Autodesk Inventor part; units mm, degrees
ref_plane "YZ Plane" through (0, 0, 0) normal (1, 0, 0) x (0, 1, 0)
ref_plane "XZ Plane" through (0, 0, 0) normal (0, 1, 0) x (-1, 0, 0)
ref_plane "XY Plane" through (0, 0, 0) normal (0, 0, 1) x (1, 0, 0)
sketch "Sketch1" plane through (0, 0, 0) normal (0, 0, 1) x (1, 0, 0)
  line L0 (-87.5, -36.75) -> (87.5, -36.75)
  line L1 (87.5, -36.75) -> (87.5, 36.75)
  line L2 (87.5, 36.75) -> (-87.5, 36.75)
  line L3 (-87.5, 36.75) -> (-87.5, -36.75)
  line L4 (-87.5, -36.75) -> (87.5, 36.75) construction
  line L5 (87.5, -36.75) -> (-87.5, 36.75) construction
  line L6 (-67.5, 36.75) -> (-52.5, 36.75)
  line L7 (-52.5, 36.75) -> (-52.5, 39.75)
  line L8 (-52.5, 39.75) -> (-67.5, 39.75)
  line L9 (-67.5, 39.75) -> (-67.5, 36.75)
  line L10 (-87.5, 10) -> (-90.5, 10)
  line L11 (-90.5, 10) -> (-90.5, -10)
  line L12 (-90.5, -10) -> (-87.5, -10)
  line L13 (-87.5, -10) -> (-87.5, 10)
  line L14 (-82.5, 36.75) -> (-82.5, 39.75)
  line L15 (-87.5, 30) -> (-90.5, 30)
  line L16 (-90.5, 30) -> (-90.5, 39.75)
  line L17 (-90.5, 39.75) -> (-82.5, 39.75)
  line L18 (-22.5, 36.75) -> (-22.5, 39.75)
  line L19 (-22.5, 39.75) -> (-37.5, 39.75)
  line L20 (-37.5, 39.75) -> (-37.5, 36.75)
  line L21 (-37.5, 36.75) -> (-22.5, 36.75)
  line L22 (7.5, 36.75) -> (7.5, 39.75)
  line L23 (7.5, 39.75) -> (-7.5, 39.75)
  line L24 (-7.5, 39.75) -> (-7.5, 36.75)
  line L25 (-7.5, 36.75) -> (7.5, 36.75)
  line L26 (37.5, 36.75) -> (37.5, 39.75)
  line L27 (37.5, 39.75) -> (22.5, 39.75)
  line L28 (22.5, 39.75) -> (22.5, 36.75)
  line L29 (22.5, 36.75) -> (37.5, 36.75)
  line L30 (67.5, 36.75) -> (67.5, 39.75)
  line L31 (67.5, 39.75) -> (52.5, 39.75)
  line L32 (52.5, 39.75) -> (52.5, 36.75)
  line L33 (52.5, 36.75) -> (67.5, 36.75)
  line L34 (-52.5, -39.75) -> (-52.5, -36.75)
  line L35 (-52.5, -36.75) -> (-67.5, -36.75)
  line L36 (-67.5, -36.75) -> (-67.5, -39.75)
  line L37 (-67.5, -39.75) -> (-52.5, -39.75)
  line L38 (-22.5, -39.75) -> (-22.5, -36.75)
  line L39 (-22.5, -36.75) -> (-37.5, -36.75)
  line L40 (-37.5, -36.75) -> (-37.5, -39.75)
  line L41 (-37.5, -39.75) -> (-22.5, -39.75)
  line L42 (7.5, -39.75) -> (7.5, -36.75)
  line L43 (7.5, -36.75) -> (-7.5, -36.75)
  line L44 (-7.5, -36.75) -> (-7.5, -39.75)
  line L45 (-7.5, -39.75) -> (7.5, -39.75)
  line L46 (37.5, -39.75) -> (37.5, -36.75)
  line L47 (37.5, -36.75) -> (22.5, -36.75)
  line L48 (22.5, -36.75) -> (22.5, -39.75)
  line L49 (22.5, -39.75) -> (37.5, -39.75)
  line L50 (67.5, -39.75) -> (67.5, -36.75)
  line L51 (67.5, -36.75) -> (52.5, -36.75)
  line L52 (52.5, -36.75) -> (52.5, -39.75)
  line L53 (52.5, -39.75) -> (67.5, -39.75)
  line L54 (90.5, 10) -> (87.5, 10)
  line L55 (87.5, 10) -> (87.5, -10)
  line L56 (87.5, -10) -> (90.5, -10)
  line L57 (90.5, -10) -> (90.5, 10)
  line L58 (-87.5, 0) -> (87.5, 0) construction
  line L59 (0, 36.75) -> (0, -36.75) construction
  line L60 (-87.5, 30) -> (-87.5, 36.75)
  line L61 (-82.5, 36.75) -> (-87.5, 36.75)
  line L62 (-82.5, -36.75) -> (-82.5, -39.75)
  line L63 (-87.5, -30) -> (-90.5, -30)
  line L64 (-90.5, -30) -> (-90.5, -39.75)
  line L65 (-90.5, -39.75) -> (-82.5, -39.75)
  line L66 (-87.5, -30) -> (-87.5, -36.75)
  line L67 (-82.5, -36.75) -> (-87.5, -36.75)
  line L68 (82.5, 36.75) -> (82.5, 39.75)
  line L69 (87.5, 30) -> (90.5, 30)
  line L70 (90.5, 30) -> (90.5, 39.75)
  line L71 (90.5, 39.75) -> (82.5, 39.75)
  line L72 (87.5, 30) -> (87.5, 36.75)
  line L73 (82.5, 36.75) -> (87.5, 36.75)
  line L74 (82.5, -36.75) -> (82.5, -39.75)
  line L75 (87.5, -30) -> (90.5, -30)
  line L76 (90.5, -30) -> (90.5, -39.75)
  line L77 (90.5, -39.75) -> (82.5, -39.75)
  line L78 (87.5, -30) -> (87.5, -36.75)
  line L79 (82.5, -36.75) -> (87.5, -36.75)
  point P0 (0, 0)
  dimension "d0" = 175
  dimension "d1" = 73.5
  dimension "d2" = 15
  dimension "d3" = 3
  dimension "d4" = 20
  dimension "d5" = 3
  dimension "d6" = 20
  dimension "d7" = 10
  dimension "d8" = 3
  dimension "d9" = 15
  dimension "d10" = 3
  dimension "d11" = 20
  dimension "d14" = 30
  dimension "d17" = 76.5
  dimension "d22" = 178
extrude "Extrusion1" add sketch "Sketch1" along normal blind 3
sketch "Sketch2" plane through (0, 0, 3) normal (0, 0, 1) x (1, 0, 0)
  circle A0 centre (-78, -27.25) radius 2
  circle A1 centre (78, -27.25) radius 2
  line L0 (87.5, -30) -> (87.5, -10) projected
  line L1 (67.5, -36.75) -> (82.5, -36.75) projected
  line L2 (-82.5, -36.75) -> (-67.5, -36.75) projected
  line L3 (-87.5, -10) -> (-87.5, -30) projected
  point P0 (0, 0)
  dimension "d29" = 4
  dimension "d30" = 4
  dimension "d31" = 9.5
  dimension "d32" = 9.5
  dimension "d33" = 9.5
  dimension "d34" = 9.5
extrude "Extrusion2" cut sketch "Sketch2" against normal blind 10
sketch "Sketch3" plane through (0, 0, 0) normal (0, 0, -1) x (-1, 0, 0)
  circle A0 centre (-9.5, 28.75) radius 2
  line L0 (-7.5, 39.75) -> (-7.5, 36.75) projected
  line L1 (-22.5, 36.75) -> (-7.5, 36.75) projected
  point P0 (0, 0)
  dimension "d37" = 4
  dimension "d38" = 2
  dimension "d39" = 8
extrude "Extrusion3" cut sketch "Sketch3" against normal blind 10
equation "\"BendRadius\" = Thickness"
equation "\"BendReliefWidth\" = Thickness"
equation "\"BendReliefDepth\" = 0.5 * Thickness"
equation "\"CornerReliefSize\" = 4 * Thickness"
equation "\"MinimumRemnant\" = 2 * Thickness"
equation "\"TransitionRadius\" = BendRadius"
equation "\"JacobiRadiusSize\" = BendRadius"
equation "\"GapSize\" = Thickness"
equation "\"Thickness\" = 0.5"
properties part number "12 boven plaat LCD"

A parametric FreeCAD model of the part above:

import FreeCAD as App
import Part
import Sketcher

V = App.Vector
Q = App.Units.Quantity

doc = App.newDocument("Part")
body = doc.addObject("PartDesign::Body", "Body")

# Sketch on XY plane
sketch1 = body.newObject("Sketcher::SketchObject", "Sketch")
sketch1.AttachmentSupport = (doc.getObject("XY_Plane"), [""])
sketch1.MapMode = "FlatFace"
sketch1.addGeometry(Part.LineSegment(V(-87.5, -10, 0), V(-87.5, -30, 0)), False)
sketch1.addGeometry(Part.LineSegment(V(-87.5, -30, 0), V(-90.5, -30, 0)), False)
sketch1.addGeometry(Part.LineSegment(V(-90.5, -30, 0), V(-90.5, -39.8, 0)), False)
sketch1.addGeometry(Part.LineSegment(V(-90.5, -39.8, 0), V(-82.5, -39.8, 0)), False)
sketch1.addGeometry(Part.LineSegment(V(-82.5, -39.8, 0), V(-82.5, -36.8, 0)), False)
sketch1.addGeometry(Part.LineSegment(V(-82.5, -36.8, 0), V(-67.5, -36.8, 0)), False)
sketch1.addGeometry(Part.LineSegment(V(-67.5, -36.8, 0), V(-67.5, -39.8, 0)), False)
sketch1.addGeometry(Part.LineSegment(V(-67.5, -39.8, 0), V(-52.5, -39.8, 0)), False)
sketch1.addGeometry(Part.LineSegment(V(-52.5, -39.8, 0), V(-52.5, -36.8, 0)), False)
sketch1.addGeometry(Part.LineSegment(V(-52.5, -36.8, 0), V(-37.5, -36.8, 0)), False)
sketch1.addGeometry(Part.LineSegment(V(-37.5, -36.8, 0), V(-37.5, -39.8, 0)), False)
sketch1.addGeometry(Part.LineSegment(V(-37.5, -39.8, 0), V(-22.5, -39.8, 0)), False)
sketch1.addGeometry(Part.LineSegment(V(-22.5, -39.8, 0), V(-22.5, -36.8, 0)), False)
sketch1.addGeometry(Part.LineSegment(V(-22.5, -36.8, 0), V(-7.5, -36.8, 0)), False)
sketch1.addGeometry(Part.LineSegment(V(-7.5, -36.8, 0), V(-7.5, -39.8, 0)), False)
sketch1.addGeometry(Part.LineSegment(V(-7.5, -39.8, 0), V(7.5, -39.8, 0)), False)
sketch1.addGeometry(Part.LineSegment(V(7.5, -39.8, 0), V(7.5, -36.8, 0)), False)
sketch1.addGeometry(Part.LineSegment(V(7.5, -36.8, 0), V(22.5, -36.8, 0)), False)
sketch1.addGeometry(Part.LineSegment(V(22.5, -36.8, 0), V(22.5, -39.8, 0)), False)
sketch1.addGeometry(Part.LineSegment(V(22.5, -39.8, 0), V(37.5, -39.8, 0)), False)
sketch1.addGeometry(Part.LineSegment(V(37.5, -39.8, 0), V(37.5, -36.8, 0)), False)
sketch1.addGeometry(Part.LineSegment(V(37.5, -36.8, 0), V(52.5, -36.8, 0)), False)
sketch1.addGeometry(Part.LineSegment(V(52.5, -36.8, 0), V(52.5, -39.8, 0)), False)
sketch1.addGeometry(Part.LineSegment(V(52.5, -39.8, 0), V(67.5, -39.8, 0)), False)
sketch1.addGeometry(Part.LineSegment(V(67.5, -39.8, 0), V(67.5, -36.8, 0)), False)
sketch1.addGeometry(Part.LineSegment(V(67.5, -36.8, 0), V(82.5, -36.8, 0)), False)
sketch1.addGeometry(Part.LineSegment(V(82.5, -36.8, 0), V(82.5, -39.8, 0)), False)
sketch1.addGeometry(Part.LineSegment(V(82.5, -39.8, 0), V(90.5, -39.8, 0)), False)
sketch1.addGeometry(Part.LineSegment(V(90.5, -39.8, 0), V(90.5, -30, 0)), False)
sketch1.addGeometry(Part.LineSegment(V(90.5, -30, 0), V(87.5, -30, 0)), False)
sketch1.addGeometry(Part.LineSegment(V(87.5, -30, 0), V(87.5, -10, 0)), False)
sketch1.addGeometry(Part.LineSegment(V(87.5, -10, 0), V(90.5, -10, 0)), False)
sketch1.addGeometry(Part.LineSegment(V(90.5, -10, 0), V(90.5, 10, 0)), False)
sketch1.addGeometry(Part.LineSegment(V(90.5, 10, 0), V(87.5, 10, 0)), False)
sketch1.addGeometry(Part.LineSegment(V(87.5, 10, 0), V(87.5, 30, 0)), False)
sketch1.addGeometry(Part.LineSegment(V(87.5, 30, 0), V(90.5, 30, 0)), False)
sketch1.addGeometry(Part.LineSegment(V(90.5, 30, 0), V(90.5, 39.8, 0)), False)
sketch1.addGeometry(Part.LineSegment(V(90.5, 39.8, 0), V(82.5, 39.8, 0)), False)
sketch1.addGeometry(Part.LineSegment(V(82.5, 39.8, 0), V(82.5, 36.8, 0)), False)
sketch1.addGeometry(Part.LineSegment(V(82.5, 36.8, 0), V(67.5, 36.8, 0)), False)
sketch1.addGeometry(Part.LineSegment(V(67.5, 36.8, 0), V(67.5, 39.8, 0)), False)
sketch1.addGeometry(Part.LineSegment(V(67.5, 39.8, 0), V(52.5, 39.8, 0)), False)
sketch1.addGeometry(Part.LineSegment(V(52.5, 39.8, 0), V(52.5, 36.8, 0)), False)
sketch1.addGeometry(Part.LineSegment(V(52.5, 36.8, 0), V(37.5, 36.8, 0)), False)
sketch1.addGeometry(Part.LineSegment(V(37.5, 36.8, 0), V(37.5, 39.8, 0)), False)
sketch1.addGeometry(Part.LineSegment(V(37.5, 39.8, 0), V(22.5, 39.8, 0)), False)
sketch1.addGeometry(Part.LineSegment(V(22.5, 39.8, 0), V(22.5, 36.8, 0)), False)
sketch1.addGeometry(Part.LineSegment(V(22.5, 36.8, 0), V(7.5, 36.8, 0)), False)
sketch1.addGeometry(Part.LineSegment(V(7.5, 36.8, 0), V(7.5, 39.8, 0)), False)
sketch1.addGeometry(Part.LineSegment(V(7.5, 39.8, 0), V(-7.5, 39.8, 0)), False)
sketch1.addGeometry(Part.LineSegment(V(-7.5, 39.8, 0), V(-7.5, 36.8, 0)), False)
sketch1.addGeometry(Part.LineSegment(V(-7.5, 36.8, 0), V(-22.5, 36.8, 0)), False)
sketch1.addGeometry(Part.LineSegment(V(-22.5, 36.8, 0), V(-22.5, 39.8, 0)), False)
sketch1.addGeometry(Part.LineSegment(V(-22.5, 39.8, 0), V(-37.5, 39.8, 0)), False)
sketch1.addGeometry(Part.LineSegment(V(-37.5, 39.8, 0), V(-37.5, 36.8, 0)), False)
sketch1.addGeometry(Part.LineSegment(V(-37.5, 36.8, 0), V(-52.5, 36.8, 0)), False)
sketch1.addGeometry(Part.LineSegment(V(-52.5, 36.8, 0), V(-52.5, 39.8, 0)), False)
sketch1.addGeometry(Part.LineSegment(V(-52.5, 39.8, 0), V(-67.5, 39.8, 0)), False)
sketch1.addGeometry(Part.LineSegment(V(-67.5, 39.8, 0), V(-67.5, 36.8, 0)), False)
sketch1.addGeometry(Part.LineSegment(V(-67.5, 36.8, 0), V(-82.5, 36.8, 0)), False)
sketch1.addGeometry(Part.LineSegment(V(-82.5, 36.8, 0), V(-82.5, 39.8, 0)), False)
sketch1.addGeometry(Part.LineSegment(V(-82.5, 39.8, 0), V(-90.5, 39.8, 0)), False)
sketch1.addGeometry(Part.LineSegment(V(-90.5, 39.8, 0), V(-90.5, 30, 0)), False)
sketch1.addGeometry(Part.LineSegment(V(-90.5, 30, 0), V(-87.5, 30, 0)), False)
sketch1.addGeometry(Part.LineSegment(V(-87.5, 30, 0), V(-87.5, 10, 0)), False)
sketch1.addGeometry(Part.LineSegment(V(-87.5, 10, 0), V(-90.5, 10, 0)), False)
sketch1.addGeometry(Part.LineSegment(V(-90.5, 10, 0), V(-90.5, -10, 0)), False)
sketch1.addGeometry(Part.LineSegment(V(-90.5, -10, 0), V(-87.5, -10, 0)), False)
sketch1.addConstraint(Sketcher.Constraint("Coincident", 0, 2, 1, 1))
sketch1.addConstraint(Sketcher.Constraint("Coincident", 1, 2, 2, 1))
sketch1.addConstraint(Sketcher.Constraint("Coincident", 2, 2, 3, 1))
sketch1.addConstraint(Sketcher.Constraint("Coincident", 3, 2, 4, 1))
sketch1.addConstraint(Sketcher.Constraint("Coincident", 4, 2, 5, 1))
sketch1.addConstraint(Sketcher.Constraint("Coincident", 5, 2, 6, 1))
sketch1.addConstraint(Sketcher.Constraint("Coincident", 6, 2, 7, 1))
sketch1.addConstraint(Sketcher.Constraint("Coincident", 7, 2, 8, 1))
sketch1.addConstraint(Sketcher.Constraint("Coincident", 8, 2, 9, 1))
sketch1.addConstraint(Sketcher.Constraint("Coincident", 9, 2, 10, 1))
sketch1.addConstraint(Sketcher.Constraint("Coincident", 10, 2, 11, 1))
sketch1.addConstraint(Sketcher.Constraint("Coincident", 11, 2, 12, 1))
sketch1.addConstraint(Sketcher.Constraint("Coincident", 12, 2, 13, 1))
sketch1.addConstraint(Sketcher.Constraint("Coincident", 13, 2, 14, 1))
sketch1.addConstraint(Sketcher.Constraint("Coincident", 14, 2, 15, 1))
sketch1.addConstraint(Sketcher.Constraint("Coincident", 15, 2, 16, 1))
sketch1.addConstraint(Sketcher.Constraint("Coincident", 16, 2, 17, 1))
sketch1.addConstraint(Sketcher.Constraint("Coincident", 17, 2, 18, 1))
sketch1.addConstraint(Sketcher.Constraint("Coincident", 18, 2, 19, 1))
sketch1.addConstraint(Sketcher.Constraint("Coincident", 19, 2, 20, 1))
sketch1.addConstraint(Sketcher.Constraint("Coincident", 20, 2, 21, 1))
sketch1.addConstraint(Sketcher.Constraint("Coincident", 21, 2, 22, 1))
sketch1.addConstraint(Sketcher.Constraint("Coincident", 22, 2, 23, 1))
sketch1.addConstraint(Sketcher.Constraint("Coincident", 23, 2, 24, 1))
sketch1.addConstraint(Sketcher.Constraint("Coincident", 24, 2, 25, 1))
sketch1.addConstraint(Sketcher.Constraint("Coincident", 25, 2, 26, 1))
sketch1.addConstraint(Sketcher.Constraint("Coincident", 26, 2, 27, 1))
sketch1.addConstraint(Sketcher.Constraint("Coincident", 27, 2, 28, 1))
sketch1.addConstraint(Sketcher.Constraint("Coincident", 28, 2, 29, 1))
sketch1.addConstraint(Sketcher.Constraint("Coincident", 29, 2, 30, 1))
sketch1.addConstraint(Sketcher.Constraint("Coincident", 30, 2, 31, 1))
sketch1.addConstraint(Sketcher.Constraint("Coincident", 31, 2, 32, 1))
sketch1.addConstraint(Sketcher.Constraint("Coincident", 32, 2, 33, 1))
sketch1.addConstraint(Sketcher.Constraint("Coincident", 33, 2, 34, 1))
sketch1.addConstraint(Sketcher.Constraint("Coincident", 34, 2, 35, 1))
sketch1.addConstraint(Sketcher.Constraint("Coincident", 35, 2, 36, 1))
sketch1.addConstraint(Sketcher.Constraint("Coincident", 36, 2, 37, 1))
sketch1.addConstraint(Sketcher.Constraint("Coincident", 37, 2, 38, 1))
sketch1.addConstraint(Sketcher.Constraint("Coincident", 38, 2, 39, 1))
sketch1.addConstraint(Sketcher.Constraint("Coincident", 39, 2, 40, 1))
sketch1.addConstraint(Sketcher.Constraint("Coincident", 40, 2, 41, 1))
sketch1.addConstraint(Sketcher.Constraint("Coincident", 41, 2, 42, 1))
sketch1.addConstraint(Sketcher.Constraint("Coincident", 42, 2, 43, 1))
sketch1.addConstraint(Sketcher.Constraint("Coincident", 43, 2, 44, 1))
sketch1.addConstraint(Sketcher.Constraint("Coincident", 44, 2, 45, 1))
sketch1.addConstraint(Sketcher.Constraint("Coincident", 45, 2, 46, 1))
sketch1.addConstraint(Sketcher.Constraint("Coincident", 46, 2, 47, 1))
sketch1.addConstraint(Sketcher.Constraint("Coincident", 47, 2, 48, 1))
sketch1.addConstraint(Sketcher.Constraint("Coincident", 48, 2, 49, 1))
sketch1.addConstraint(Sketcher.Constraint("Coincident", 49, 2, 50, 1))
sketch1.addConstraint(Sketcher.Constraint("Coincident", 50, 2, 51, 1))
sketch1.addConstraint(Sketcher.Constraint("Coincident", 51, 2, 52, 1))
sketch1.addConstraint(Sketcher.Constraint("Coincident", 52, 2, 53, 1))
sketch1.addConstraint(Sketcher.Constraint("Coincident", 53, 2, 54, 1))
sketch1.addConstraint(Sketcher.Constraint("Coincident", 54, 2, 55, 1))
sketch1.addConstraint(Sketcher.Constraint("Coincident", 55, 2, 56, 1))
sketch1.addConstraint(Sketcher.Constraint("Coincident", 56, 2, 57, 1))
sketch1.addConstraint(Sketcher.Constraint("Coincident", 57, 2, 58, 1))
sketch1.addConstraint(Sketcher.Constraint("Coincident", 58, 2, 59, 1))
sketch1.addConstraint(Sketcher.Constraint("Coincident", 59, 2, 60, 1))
sketch1.addConstraint(Sketcher.Constraint("Coincident", 60, 2, 61, 1))
sketch1.addConstraint(Sketcher.Constraint("Coincident", 61, 2, 62, 1))
sketch1.addConstraint(Sketcher.Constraint("Coincident", 62, 2, 63, 1))
sketch1.addConstraint(Sketcher.Constraint("Coincident", 63, 2, 64, 1))
sketch1.addConstraint(Sketcher.Constraint("Coincident", 64, 2, 65, 1))
sketch1.addConstraint(Sketcher.Constraint("Coincident", 65, 2, 66, 1))
sketch1.addConstraint(Sketcher.Constraint("Coincident", 66, 2, 67, 1))
sketch1.addConstraint(Sketcher.Constraint("Coincident", 67, 2, 0, 1))
sketch1.addConstraint(Sketcher.Constraint("Vertical", 0))
sketch1.addConstraint(Sketcher.Constraint("Horizontal", 1))
sketch1.addConstraint(Sketcher.Constraint("Vertical", 2))
sketch1.addConstraint(Sketcher.Constraint("Horizontal", 3))
sketch1.addConstraint(Sketcher.Constraint("Vertical", 4))
sketch1.addConstraint(Sketcher.Constraint("Horizontal", 5))
sketch1.addConstraint(Sketcher.Constraint("Vertical", 6))
sketch1.addConstraint(Sketcher.Constraint("Horizontal", 7))
sketch1.addConstraint(Sketcher.Constraint("Vertical", 8))
sketch1.addConstraint(Sketcher.Constraint("Horizontal", 9))
sketch1.addConstraint(Sketcher.Constraint("Vertical", 10))
sketch1.addConstraint(Sketcher.Constraint("Horizontal", 11))
sketch1.addConstraint(Sketcher.Constraint("Vertical", 12))
sketch1.addConstraint(Sketcher.Constraint("Horizontal", 13))
sketch1.addConstraint(Sketcher.Constraint("Vertical", 14))
sketch1.addConstraint(Sketcher.Constraint("Horizontal", 15))
sketch1.addConstraint(Sketcher.Constraint("Vertical", 16))
sketch1.addConstraint(Sketcher.Constraint("Horizontal", 17))
sketch1.addConstraint(Sketcher.Constraint("Vertical", 18))
sketch1.addConstraint(Sketcher.Constraint("Horizontal", 19))
sketch1.addConstraint(Sketcher.Constraint("Vertical", 20))
sketch1.addConstraint(Sketcher.Constraint("Horizontal", 21))
sketch1.addConstraint(Sketcher.Constraint("Vertical", 22))
sketch1.addConstraint(Sketcher.Constraint("Horizontal", 23))
sketch1.addConstraint(Sketcher.Constraint("Vertical", 24))
sketch1.addConstraint(Sketcher.Constraint("Horizontal", 25))
sketch1.addConstraint(Sketcher.Constraint("Vertical", 26))
sketch1.addConstraint(Sketcher.Constraint("Horizontal", 27))
sketch1.addConstraint(Sketcher.Constraint("Vertical", 28))
sketch1.addConstraint(Sketcher.Constraint("Horizontal", 29))
sketch1.addConstraint(Sketcher.Constraint("Vertical", 30))
sketch1.addConstraint(Sketcher.Constraint("Horizontal", 31))
sketch1.addConstraint(Sketcher.Constraint("Vertical", 32))
sketch1.addConstraint(Sketcher.Constraint("Horizontal", 33))
sketch1.addConstraint(Sketcher.Constraint("Vertical", 34))
sketch1.addConstraint(Sketcher.Constraint("Horizontal", 35))
sketch1.addConstraint(Sketcher.Constraint("Vertical", 36))
sketch1.addConstraint(Sketcher.Constraint("Horizontal", 37))
sketch1.addConstraint(Sketcher.Constraint("Vertical", 38))
sketch1.addConstraint(Sketcher.Constraint("Horizontal", 39))
sketch1.addConstraint(Sketcher.Constraint("Vertical", 40))
sketch1.addConstraint(Sketcher.Constraint("Horizontal", 41))
sketch1.addConstraint(Sketcher.Constraint("Vertical", 42))
sketch1.addConstraint(Sketcher.Constraint("Horizontal", 43))
sketch1.addConstraint(Sketcher.Constraint("Vertical", 44))
sketch1.addConstraint(Sketcher.Constraint("Horizontal", 45))
sketch1.addConstraint(Sketcher.Constraint("Vertical", 46))
sketch1.addConstraint(Sketcher.Constraint("Horizontal", 47))
sketch1.addConstraint(Sketcher.Constraint("Vertical", 48))
sketch1.addConstraint(Sketcher.Constraint("Horizontal", 49))
sketch1.addConstraint(Sketcher.Constraint("Vertical", 50))
sketch1.addConstraint(Sketcher.Constraint("Horizontal", 51))
sketch1.addConstraint(Sketcher.Constraint("Vertical", 52))
sketch1.addConstraint(Sketcher.Constraint("Horizontal", 53))
sketch1.addConstraint(Sketcher.Constraint("Vertical", 54))
sketch1.addConstraint(Sketcher.Constraint("Horizontal", 55))
sketch1.addConstraint(Sketcher.Constraint("Vertical", 56))
sketch1.addConstraint(Sketcher.Constraint("Horizontal", 57))
sketch1.addConstraint(Sketcher.Constraint("Vertical", 58))
sketch1.addConstraint(Sketcher.Constraint("Horizontal", 59))
sketch1.addConstraint(Sketcher.Constraint("Vertical", 60))
sketch1.addConstraint(Sketcher.Constraint("Horizontal", 61))
sketch1.addConstraint(Sketcher.Constraint("Vertical", 62))
sketch1.addConstraint(Sketcher.Constraint("Horizontal", 63))
sketch1.addConstraint(Sketcher.Constraint("Vertical", 64))
sketch1.addConstraint(Sketcher.Constraint("Horizontal", 65))
sketch1.addConstraint(Sketcher.Constraint("Vertical", 66))
sketch1.addConstraint(Sketcher.Constraint("Horizontal", 67))
sketch1.addConstraint(Sketcher.Constraint("Symmetric", 0, 2, 34, 2, -1, 1))
sketch1.addConstraint(Sketcher.Constraint("Symmetric", 2, 2, 36, 2, -1, 1))
sketch1.addConstraint(Sketcher.Constraint("Symmetric", 4, 2, 38, 2, -1, 1))
sketch1.addConstraint(Sketcher.Constraint("Symmetric", 6, 2, 40, 2, -1, 1))
sketch1.addConstraint(Sketcher.Constraint("Symmetric", 8, 2, 42, 2, -1, 1))
sketch1.addConstraint(Sketcher.Constraint("Symmetric", 10, 2, 44, 2, -1, 1))
sketch1.addConstraint(Sketcher.Constraint("Symmetric", 12, 2, 46, 2, -1, 1))
sketch1.addConstraint(Sketcher.Constraint("Symmetric", 14, 2, 48, 2, -1, 1))
sketch1.addConstraint(Sketcher.Constraint("Symmetric", 16, 2, 50, 2, -1, 1))
sketch1.addConstraint(Sketcher.Constraint("Symmetric", 18, 2, 52, 2, -1, 1))
sketch1.addConstraint(Sketcher.Constraint("Symmetric", 20, 2, 54, 2, -1, 1))
sketch1.addConstraint(Sketcher.Constraint("Symmetric", 22, 2, 56, 2, -1, 1))
sketch1.addConstraint(Sketcher.Constraint("Symmetric", 24, 2, 58, 2, -1, 1))
sketch1.addConstraint(Sketcher.Constraint("Symmetric", 26, 2, 60, 2, -1, 1))
sketch1.addConstraint(Sketcher.Constraint("Symmetric", 28, 2, 62, 2, -1, 1))
sketch1.addConstraint(Sketcher.Constraint("Symmetric", 30, 2, 64, 2, -1, 1))
sketch1.addConstraint(Sketcher.Constraint("Symmetric", 32, 2, 66, 2, -1, 1))
sketch1.addConstraint(Sketcher.Constraint("Symmetric", 13, 2, 16, 2, -2))
sketch1.addConstraint(Sketcher.Constraint("Symmetric", 11, 2, 18, 2, -2))
sketch1.addConstraint(Sketcher.Constraint("Symmetric", 9, 2, 20, 2, -2))
sketch1.addConstraint(Sketcher.Constraint("Symmetric", 7, 2, 22, 2, -2))
sketch1.addConstraint(Sketcher.Constraint("Symmetric", 5, 2, 24, 2, -2))
sketch1.addConstraint(Sketcher.Constraint("Symmetric", 3, 2, 26, 2, -2))
sketch1.addConstraint(Sketcher.Constraint("Symmetric", 1, 2, 28, 2, -2))
sketch1.addConstraint(Sketcher.Constraint("Symmetric", 33, 2, 64, 2, -2))
sketch1.addConstraint(Sketcher.Constraint("Horizontal", 3, 2, 6, 2))
sketch1.addConstraint(Sketcher.Constraint("Horizontal", 5, 2, 8, 2))
sketch1.addConstraint(Sketcher.Constraint("Horizontal", 7, 2, 10, 2))
sketch1.addConstraint(Sketcher.Constraint("Horizontal", 9, 2, 12, 2))
sketch1.addConstraint(Sketcher.Constraint("Horizontal", 11, 2, 14, 2))
sketch1.addConstraint(Sketcher.Constraint("Vertical", 28, 2, 31, 2))
sketch1.addConstraint(Sketcher.Constraint("Equal", 5, 7))
sketch1.addConstraint(Sketcher.Constraint("Equal", 7, 9))
sketch1.addConstraint(Sketcher.Constraint("Equal", 9, 11))
sketch1.addConstraint(Sketcher.Constraint("Equal", 11, 13))
sketch1.addConstraint(Sketcher.Constraint("Equal", 13, 15))
sketch1.addConstraint(Sketcher.Constraint("Equal", 67, 4))
sketch1.addConstraint(Sketcher.Constraint("Equal", 30, 32))
sketch1.addConstraint(Sketcher.Constraint("DistanceX", 1, 2, 1, 1, Q("3 mm")))
sketch1.addConstraint(Sketcher.Constraint("DistanceX", 5, 1, 5, 2, Q("15 mm")))
sketch1.addConstraint(Sketcher.Constraint("DistanceY", 0, 2, 0, 1, Q("20 mm")))
sketch1.addConstraint(Sketcher.Constraint("DistanceX", 3, 1, 3, 2, Q("8 mm")))
sketch1.addConstraint(Sketcher.Constraint("DistanceY", 2, 2, 2, 1, Q("9.75 mm")))
pad1 = body.newObject("PartDesign::Pad", "Pad")
pad1.Profile = sketch1
pad1.Length = 3

# Sketch on XY plane
sketch2 = body.newObject("Sketcher::SketchObject", "Sketch001")
sketch2.AttachmentSupport = (doc.getObject("XY_Plane"), [""])
sketch2.MapMode = "FlatFace"
sketch2.AttachmentOffset = App.Placement(V(0, 0, 3), App.Rotation())
sketch2.addGeometry(Part.Circle(V(-78, -27.2, 0), V(0, 0, 1), 2), False)
sketch2.addGeometry(Part.Circle(V(78, -27.2, 0), V(0, 0, 1), 2), False)
sketch2.addConstraint(Sketcher.Constraint("Equal", 0, 1))
sketch2.addConstraint(Sketcher.Constraint("Symmetric", 0, 3, 1, 3, -2))
sketch2.addConstraint(Sketcher.Constraint("Diameter", 0, Q("4 mm")))
sketch2.addConstraint(Sketcher.Constraint("DistanceX", 0, 3, -1, 1, Q("78 mm")))
sketch2.addConstraint(Sketcher.Constraint("DistanceY", 0, 3, -1, 1, Q("27.25 mm")))
pocket1 = body.newObject("PartDesign::Pocket", "Pocket")
pocket1.Profile = sketch2
pocket1.Length = 10

# Sketch on XY plane
sketch3 = body.newObject("Sketcher::SketchObject", "Sketch002")
sketch3.AttachmentSupport = (doc.getObject("XY_Plane"), [""])
sketch3.MapMode = "FlatFace"
sketch3.addGeometry(Part.Circle(V(9.5, 28.8, 0), V(0, 0, 1), 2), False)
sketch3.addConstraint(Sketcher.Constraint("Diameter", 0, Q("4 mm")))
sketch3.addConstraint(Sketcher.Constraint("DistanceX", -1, 1, 0, 3, Q("9.5 mm")))
sketch3.addConstraint(Sketcher.Constraint("DistanceY", -1, 1, 0, 3, Q("28.75 mm")))
pocket2 = body.newObject("PartDesign::Pocket", "Pocket001")
pocket2.Profile = sketch3
pocket2.Length = 10
pocket2.Reversed = True

doc.recompute()
